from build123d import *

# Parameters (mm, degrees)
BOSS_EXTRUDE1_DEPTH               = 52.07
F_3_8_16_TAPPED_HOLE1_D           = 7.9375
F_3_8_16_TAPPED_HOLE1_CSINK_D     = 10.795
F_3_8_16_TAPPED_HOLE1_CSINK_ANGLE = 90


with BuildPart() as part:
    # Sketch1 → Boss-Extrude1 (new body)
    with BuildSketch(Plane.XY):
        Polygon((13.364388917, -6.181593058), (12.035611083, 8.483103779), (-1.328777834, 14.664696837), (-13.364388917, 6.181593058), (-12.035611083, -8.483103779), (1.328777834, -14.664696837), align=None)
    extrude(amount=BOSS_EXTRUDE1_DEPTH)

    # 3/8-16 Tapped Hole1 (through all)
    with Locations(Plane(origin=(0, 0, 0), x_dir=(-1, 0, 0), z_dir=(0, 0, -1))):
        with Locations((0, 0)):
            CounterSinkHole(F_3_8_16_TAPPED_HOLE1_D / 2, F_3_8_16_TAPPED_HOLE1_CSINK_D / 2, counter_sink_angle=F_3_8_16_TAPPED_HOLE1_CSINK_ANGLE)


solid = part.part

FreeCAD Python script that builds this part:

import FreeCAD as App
import Part
import Sketcher
from FreeCAD import Vector
Q = App.Units.Quantity

doc = App.newDocument("Part")
body = doc.addObject("PartDesign::Body", "Body")

# Sketch on XY plane
sketch1 = body.newObject("Sketcher::SketchObject", "Sketch")
sketch1.AttachmentSupport = (doc.getObject("XY_Plane"), [""])
sketch1.MapMode = "FlatFace"
sketch1.addGeometry(Part.LineSegment(Vector(13.364389, -6.181593, 0), Vector(12.035611, 8.483104, 0)), False)
sketch1.addGeometry(Part.LineSegment(Vector(12.035611, 8.483104, 0), Vector(-1.328778, 14.664697, 0)), False)
sketch1.addGeometry(Part.LineSegment(Vector(-1.328778, 14.664697, 0), Vector(-13.364389, 6.181593, 0)), False)
sketch1.addGeometry(Part.LineSegment(Vector(-13.364389, 6.181593, 0), Vector(-12.035611, -8.483104, 0)), False)
sketch1.addGeometry(Part.LineSegment(Vector(-12.035611, -8.483104, 0), Vector(1.328778, -14.664697, 0)), False)
sketch1.addGeometry(Part.LineSegment(Vector(1.328778, -14.664697, 0), Vector(13.364389, -6.181593, 0)), False)
sketch1.addConstraint(Sketcher.Constraint("Coincident", 0, 2, 1, 1))
sketch1.addConstraint(Sketcher.Constraint("Coincident", 1, 2, 2, 1))
sketch1.addConstraint(Sketcher.Constraint("Coincident", 2, 2, 3, 1))
sketch1.addConstraint(Sketcher.Constraint("Coincident", 3, 2, 4, 1))
sketch1.addConstraint(Sketcher.Constraint("Coincident", 4, 2, 5, 1))
sketch1.addConstraint(Sketcher.Constraint("Coincident", 5, 2, 0, 1))
sketch1.addConstraint(Sketcher.Constraint("Symmetric", 0, 2, 3, 2, -1, 1))
sketch1.addConstraint(Sketcher.Constraint("Symmetric", 1, 2, 4, 2, -1, 1))
sketch1.addConstraint(Sketcher.Constraint("Symmetric", 2, 2, 5, 2, -1, 1))
sketch1.addConstraint(Sketcher.Constraint("Equal", 0, 1))
sketch1.addConstraint(Sketcher.Constraint("Equal", 1, 2))
sketch1.addConstraint(Sketcher.Constraint("DistanceX", 2, 2, 0, 2, Q("1 in")))
sketch1.addConstraint(Sketcher.Constraint("DistanceY", 3, 2, 1, 2, 23.147801))
sketch1.addConstraint(Sketcher.Constraint("DistanceX", -1, 1, 0, 2, 12.035611))
sketch1.addConstraint(Sketcher.Constraint("DistanceX", 1, 2, 0, 2, 13.364389))
pad1 = body.newObject("PartDesign::Pad", "Pad")
pad1.Profile = sketch1
pad1.Length = Q("2.05 in")

# Sketch on XY plane
sketch2 = body.newObject("Sketcher::SketchObject", "Sketch001")
sketch2.AttachmentSupport = (doc.getObject("XY_Plane"), [""])
sketch2.MapMode = "FlatFace"
sketch2.addGeometry(Part.Circle(Vector(0, 0, 0), Vector(0, 0, 1), 3.96875), False)
sketch2.addConstraint(Sketcher.Constraint("Coincident", 0, 3, -1, 1))
sketch2.addConstraint(Sketcher.Constraint("Diameter", 0, Q("0.3125 in")))
doc.recompute()
hole = body.newObject("PartDesign::Hole", "Hole")
hole.Profile = sketch2
hole.ThreadType = "None"
hole.Diameter = Q("0.3125 in")
hole.DepthType = "ThroughAll"
hole.HoleCutType = "Countersink"
hole.HoleCutDiameter = Q("0.425 in")
hole.HoleCutCountersinkAngle = 90
hole.Reversed = True

doc.recompute()
